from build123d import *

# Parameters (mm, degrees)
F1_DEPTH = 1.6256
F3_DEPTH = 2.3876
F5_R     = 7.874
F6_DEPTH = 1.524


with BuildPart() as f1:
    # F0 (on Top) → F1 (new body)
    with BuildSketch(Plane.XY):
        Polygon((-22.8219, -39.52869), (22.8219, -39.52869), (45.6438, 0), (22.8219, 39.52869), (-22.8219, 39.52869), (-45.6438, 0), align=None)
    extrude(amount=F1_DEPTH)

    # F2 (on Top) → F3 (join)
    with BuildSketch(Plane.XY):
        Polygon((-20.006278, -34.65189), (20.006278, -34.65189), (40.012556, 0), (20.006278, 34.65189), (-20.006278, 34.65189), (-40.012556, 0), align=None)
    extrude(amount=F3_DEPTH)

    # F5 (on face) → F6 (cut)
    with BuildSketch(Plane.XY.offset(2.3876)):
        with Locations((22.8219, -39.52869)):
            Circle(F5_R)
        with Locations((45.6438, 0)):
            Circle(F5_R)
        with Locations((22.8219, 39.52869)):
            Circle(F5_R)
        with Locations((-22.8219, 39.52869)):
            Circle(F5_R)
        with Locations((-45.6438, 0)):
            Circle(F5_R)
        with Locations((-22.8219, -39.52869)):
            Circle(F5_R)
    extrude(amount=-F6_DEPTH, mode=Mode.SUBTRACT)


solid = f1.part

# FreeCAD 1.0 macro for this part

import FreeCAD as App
import Part
import Sketcher
Q = App.Units.Quantity


def add_polygon(sketch, points):
    """Adds a closed chain of lines whose ends are joined by coincident constraints."""
    first, n = sketch.GeometryCount, len(points)
    for a, b in zip(points, points[1:] + points[:1]):
        sketch.addGeometry(Part.LineSegment(App.Vector(*a, 0), App.Vector(*b, 0)), False)
    for i in range(n):
        sketch.addConstraint(Sketcher.Constraint("Coincident", first + i, 2, first + (i + 1) % n, 1))

doc = App.newDocument("Part")
params = doc.addObject("Spreadsheet::Sheet", "Params")
for row, (alias, value) in enumerate([
    ("sketch1_width", "1.797 in"),
    ("sketch1_length", "1.797 in"),
    ("pad1_length", "0.064 in"),
    ("pad2_length", "0.094 in"),
    ("sketch3_diameter", "0.62 in"),
    ("pocket1_length", "0.06 in"),
], start=1):
    params.set(f"A{row}", alias)
    params.set(f"B{row}", "=" + value)
    params.setAlias(f"B{row}", alias)

body = doc.addObject("PartDesign::Body", "Body")

sketch1 = doc.addObject("Sketcher::SketchObject", "Sketch")
body.addObject(sketch1)
sketch1.AttachmentSupport = (doc.XY_Plane, [""])
sketch1.MapMode = "FlatFace"
add_polygon(sketch1, [(-23, -40), (23, -40), (46, 0), (23, 40), (-23, 40), (-46, 0)])
sketch1.addConstraint([
    Sketcher.Constraint("Horizontal", 0),
    Sketcher.Constraint("Horizontal", 3),
    Sketcher.Constraint("Symmetric", 0, 2, 3, 2, -1, 1),
    Sketcher.Constraint("Symmetric", 1, 2, 4, 2, -1, 1),
    Sketcher.Constraint("PointOnObject", 1, 2, -1),
    Sketcher.Constraint("Parallel", 2, 5),
    Sketcher.Constraint("Vertical", 0, 2, 2, 2),
    Sketcher.Constraint("Angle", 1, Q("60 deg")),
    Sketcher.Constraint("DistanceX", 0, 1, 0, 2, Q("1.797 in")),
    Sketcher.Constraint("Distance", 1, Q("1.797 in")),
])
sketch1.setExpression("Constraints[14]", "Params.sketch1_width")
sketch1.setExpression("Constraints[15]", "Params.sketch1_length")
pad1 = doc.addObject("PartDesign::Pad", "Pad")
body.addObject(pad1)
pad1.Profile = sketch1
pad1.setExpression("Length", "Params.pad1_length")

sketch2 = doc.addObject("Sketcher::SketchObject", "Sketch001")
body.addObject(sketch2)
sketch2.AttachmentSupport = (doc.XY_Plane, [""])
sketch2.MapMode = "FlatFace"
add_polygon(sketch2, [(-20, -35), (20, -35), (40, 0), (20, 35), (-20, 35), (-40, 0)])
sketch2.addConstraint([
    Sketcher.Constraint("Horizontal", 0),
    Sketcher.Constraint("Horizontal", 3),
    Sketcher.Constraint("Symmetric", 0, 2, 3, 2, -1, 1),
    Sketcher.Constraint("Symmetric", 1, 2, 4, 2, -1, 1),
    Sketcher.Constraint("PointOnObject", 1, 2, -1),
    Sketcher.Constraint("Parallel", 2, 5),
    Sketcher.Constraint("Vertical", 0, 2, 2, 2),
    Sketcher.Constraint("Angle", 1, Q("60 deg")),
    Sketcher.Constraint("DistanceX", 0, 1, 0, 2, Q("40.012556 mm")),
    Sketcher.Constraint("DistanceY", 0, 2, -1, 1, Q("34.65189 mm")),
])
pad2 = doc.addObject("PartDesign::Pad", "Pad001")
body.addObject(pad2)
pad2.Profile = sketch2
pad2.setExpression("Length", "Params.pad2_length")

sketch3 = doc.addObject("Sketcher::SketchObject", "Sketch002")
body.addObject(sketch3)
sketch3.AttachmentSupport = (doc.XY_Plane, [""])
sketch3.MapMode = "FlatFace"
sketch3.AttachmentOffset = App.Placement(App.Vector(0, 0, 0.094 * 25.4), App.Rotation())
sketch3.addGeometry([
    Part.Circle(App.Vector(23, -40, 0), App.Vector(0, 0, 1), 8),
    Part.Circle(App.Vector(46, 0, 0), App.Vector(0, 0, 1), 8),
    Part.Circle(App.Vector(23, 40, 0), App.Vector(0, 0, 1), 8),
    Part.Circle(App.Vector(-23, 40, 0), App.Vector(0, 0, 1), 8),
    Part.Circle(App.Vector(-46, 0, 0), App.Vector(0, 0, 1), 8),
    Part.Circle(App.Vector(-23, -40, 0), App.Vector(0, 0, 1), 8),
], False)
sketch3.addConstraint([
    Sketcher.Constraint("Equal", 0, 1),
    Sketcher.Constraint("Equal", 1, 2),
    Sketcher.Constraint("Equal", 2, 3),
    Sketcher.Constraint("Equal", 3, 4),
    Sketcher.Constraint("Equal", 4, 5),
    Sketcher.Constraint("Symmetric", 0, 3, 3, 3, -1, 1),
    Sketcher.Constraint("Symmetric", 1, 3, 4, 3, -1, 1),
    Sketcher.Constraint("Symmetric", 2, 3, 5, 3, -1, 1),
    Sketcher.Constraint("Symmetric", 2, 3, 3, 3, -2),
    Sketcher.Constraint("PointOnObject", 1, 3, -1),
    Sketcher.Constraint("Diameter", 0, Q("0.62 in")),
    Sketcher.Constraint("DistanceX", -1, 1, 1, 3, Q("1.797 in")),
    Sketcher.Constraint("DistanceX", 3, 3, 2, 3, Q("1.797 in")),
    Sketcher.Constraint("DistanceY", 0, 3, -1, 1, Q("39.52869 mm")),
])
sketch3.setExpression("Constraints[10]", "Params.sketch3_diameter")
pocket1 = doc.addObject("PartDesign::Pocket", "Pocket")
body.addObject(pocket1)
pocket1.Profile = sketch3
pocket1.setExpression("Length", "Params.pocket1_length")

doc.recompute()
